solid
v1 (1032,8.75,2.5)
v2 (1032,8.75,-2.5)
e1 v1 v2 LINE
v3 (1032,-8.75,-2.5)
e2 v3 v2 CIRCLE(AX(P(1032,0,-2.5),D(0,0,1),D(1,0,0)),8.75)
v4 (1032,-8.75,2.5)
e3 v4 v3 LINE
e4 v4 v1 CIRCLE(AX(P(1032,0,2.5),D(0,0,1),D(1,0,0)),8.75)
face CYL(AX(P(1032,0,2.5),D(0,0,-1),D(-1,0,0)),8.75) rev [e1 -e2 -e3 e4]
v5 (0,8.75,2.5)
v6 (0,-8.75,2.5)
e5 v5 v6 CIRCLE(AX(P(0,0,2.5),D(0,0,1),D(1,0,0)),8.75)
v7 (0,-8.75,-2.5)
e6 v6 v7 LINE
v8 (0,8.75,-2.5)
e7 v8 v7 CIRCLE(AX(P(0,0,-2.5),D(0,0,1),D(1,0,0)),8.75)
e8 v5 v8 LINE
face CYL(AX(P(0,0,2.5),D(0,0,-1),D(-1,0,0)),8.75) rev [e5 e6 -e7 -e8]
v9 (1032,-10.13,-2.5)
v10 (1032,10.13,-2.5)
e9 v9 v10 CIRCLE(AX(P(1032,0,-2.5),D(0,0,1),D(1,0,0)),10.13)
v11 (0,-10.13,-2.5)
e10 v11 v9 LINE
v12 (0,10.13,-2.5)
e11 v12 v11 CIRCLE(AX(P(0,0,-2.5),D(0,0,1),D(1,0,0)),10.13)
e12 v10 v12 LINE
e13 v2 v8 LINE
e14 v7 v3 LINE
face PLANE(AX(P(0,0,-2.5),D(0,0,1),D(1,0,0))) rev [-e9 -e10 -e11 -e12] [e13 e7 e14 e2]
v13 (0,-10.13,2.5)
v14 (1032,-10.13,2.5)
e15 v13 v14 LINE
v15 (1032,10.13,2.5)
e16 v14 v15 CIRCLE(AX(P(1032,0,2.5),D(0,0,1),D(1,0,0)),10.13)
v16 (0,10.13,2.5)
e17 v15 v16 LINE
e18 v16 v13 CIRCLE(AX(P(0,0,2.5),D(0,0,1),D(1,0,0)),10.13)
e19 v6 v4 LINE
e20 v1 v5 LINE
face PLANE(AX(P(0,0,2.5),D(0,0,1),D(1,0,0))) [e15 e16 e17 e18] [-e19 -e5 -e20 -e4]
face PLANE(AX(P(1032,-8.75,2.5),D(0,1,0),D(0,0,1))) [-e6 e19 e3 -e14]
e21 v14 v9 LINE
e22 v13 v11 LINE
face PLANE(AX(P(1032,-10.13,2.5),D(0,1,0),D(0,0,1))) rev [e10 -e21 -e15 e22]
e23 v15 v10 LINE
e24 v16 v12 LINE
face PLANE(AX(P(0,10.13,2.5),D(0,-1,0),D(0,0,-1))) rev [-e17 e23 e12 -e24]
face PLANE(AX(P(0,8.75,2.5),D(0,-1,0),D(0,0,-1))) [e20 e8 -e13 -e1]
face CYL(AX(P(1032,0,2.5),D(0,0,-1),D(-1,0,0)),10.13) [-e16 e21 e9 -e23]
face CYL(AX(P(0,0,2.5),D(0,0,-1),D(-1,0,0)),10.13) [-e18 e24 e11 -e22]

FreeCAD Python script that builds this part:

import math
import FreeCAD as App
import Part
import Sketcher

doc = App.newDocument("Part")
body = doc.addObject("PartDesign::Body", "Body")

# Sketch on XY plane
sketch1 = body.newObject("Sketcher::SketchObject", "Sketch")
sketch1.AttachmentSupport = (doc.getObject("XY_Plane"), [""])
sketch1.MapMode = "FlatFace"
sketch1.addGeometry(Part.LineSegment(App.Vector(0, -10, 0), App.Vector(1032, -10, 0)), False)
sketch1.addGeometry(Part.ArcOfCircle(Part.Circle(App.Vector(1032, 0, 0), App.Vector(0, 0, 1), 10), math.radians(-90), math.radians(90)), False)
sketch1.addGeometry(Part.LineSegment(App.Vector(1032, 10, 0), App.Vector(0, 10, 0)), False)
sketch1.addGeometry(Part.ArcOfCircle(Part.Circle(App.Vector(0, 0, 0), App.Vector(0, 0, 1), 10), math.radians(90), math.radians(270)), False)
sketch1.addGeometry(Part.LineSegment(App.Vector(1032, -9, 0), App.Vector(0, -9, 0)), False)
sketch1.addGeometry(Part.ArcOfCircle(Part.Circle(App.Vector(0, 0, 0), App.Vector(0, 0, 1), 9), math.radians(90), math.radians(270)), False)
sketch1.addGeometry(Part.LineSegment(App.Vector(0, 9, 0), App.Vector(1032, 9, 0)), False)
sketch1.addGeometry(Part.ArcOfCircle(Part.Circle(App.Vector(1032, 0, 0), App.Vector(0, 0, 1), 9), math.radians(-90), math.radians(90)), False)
sketch1.addConstraint(Sketcher.Constraint("Tangent", 0, 2, 1, 1))
sketch1.addConstraint(Sketcher.Constraint("Tangent", 1, 2, 2, 1))
sketch1.addConstraint(Sketcher.Constraint("Tangent", 2, 2, 3, 1))
sketch1.addConstraint(Sketcher.Constraint("Tangent", 3, 2, 0, 1))
sketch1.addConstraint(Sketcher.Constraint("Tangent", 4, 2, 5, 2))
sketch1.addConstraint(Sketcher.Constraint("Tangent", 5, 1, 6, 1))
sketch1.addConstraint(Sketcher.Constraint("Tangent", 6, 2, 7, 2))
sketch1.addConstraint(Sketcher.Constraint("Tangent", 7, 1, 4, 1))
sketch1.addConstraint(Sketcher.Constraint("Horizontal", 0))
sketch1.addConstraint(Sketcher.Constraint("Horizontal", 2))
sketch1.addConstraint(Sketcher.Constraint("Horizontal", 4))
sketch1.addConstraint(Sketcher.Constraint("Horizontal", 6))
sketch1.addConstraint(Sketcher.Constraint("Coincident", 3, 3, -1, 1))
sketch1.addConstraint(Sketcher.Constraint("Coincident", 5, 3, -1, 1))
sketch1.addConstraint(Sketcher.Constraint("Vertical", 7, 3, 0, 2))
sketch1.addConstraint(Sketcher.Constraint("DistanceX", 0, 1, 0, 2, 1032.0))
sketch1.addConstraint(Sketcher.Constraint("Radius", 1, 10.13))
sketch1.addConstraint(Sketcher.Constraint("Radius", 5, 8.75))
pad1 = body.newObject("PartDesign::Pad", "Pad")
pad1.Profile = sketch1
pad1.Length = 5
pad1.Midplane = True

doc.recompute()
